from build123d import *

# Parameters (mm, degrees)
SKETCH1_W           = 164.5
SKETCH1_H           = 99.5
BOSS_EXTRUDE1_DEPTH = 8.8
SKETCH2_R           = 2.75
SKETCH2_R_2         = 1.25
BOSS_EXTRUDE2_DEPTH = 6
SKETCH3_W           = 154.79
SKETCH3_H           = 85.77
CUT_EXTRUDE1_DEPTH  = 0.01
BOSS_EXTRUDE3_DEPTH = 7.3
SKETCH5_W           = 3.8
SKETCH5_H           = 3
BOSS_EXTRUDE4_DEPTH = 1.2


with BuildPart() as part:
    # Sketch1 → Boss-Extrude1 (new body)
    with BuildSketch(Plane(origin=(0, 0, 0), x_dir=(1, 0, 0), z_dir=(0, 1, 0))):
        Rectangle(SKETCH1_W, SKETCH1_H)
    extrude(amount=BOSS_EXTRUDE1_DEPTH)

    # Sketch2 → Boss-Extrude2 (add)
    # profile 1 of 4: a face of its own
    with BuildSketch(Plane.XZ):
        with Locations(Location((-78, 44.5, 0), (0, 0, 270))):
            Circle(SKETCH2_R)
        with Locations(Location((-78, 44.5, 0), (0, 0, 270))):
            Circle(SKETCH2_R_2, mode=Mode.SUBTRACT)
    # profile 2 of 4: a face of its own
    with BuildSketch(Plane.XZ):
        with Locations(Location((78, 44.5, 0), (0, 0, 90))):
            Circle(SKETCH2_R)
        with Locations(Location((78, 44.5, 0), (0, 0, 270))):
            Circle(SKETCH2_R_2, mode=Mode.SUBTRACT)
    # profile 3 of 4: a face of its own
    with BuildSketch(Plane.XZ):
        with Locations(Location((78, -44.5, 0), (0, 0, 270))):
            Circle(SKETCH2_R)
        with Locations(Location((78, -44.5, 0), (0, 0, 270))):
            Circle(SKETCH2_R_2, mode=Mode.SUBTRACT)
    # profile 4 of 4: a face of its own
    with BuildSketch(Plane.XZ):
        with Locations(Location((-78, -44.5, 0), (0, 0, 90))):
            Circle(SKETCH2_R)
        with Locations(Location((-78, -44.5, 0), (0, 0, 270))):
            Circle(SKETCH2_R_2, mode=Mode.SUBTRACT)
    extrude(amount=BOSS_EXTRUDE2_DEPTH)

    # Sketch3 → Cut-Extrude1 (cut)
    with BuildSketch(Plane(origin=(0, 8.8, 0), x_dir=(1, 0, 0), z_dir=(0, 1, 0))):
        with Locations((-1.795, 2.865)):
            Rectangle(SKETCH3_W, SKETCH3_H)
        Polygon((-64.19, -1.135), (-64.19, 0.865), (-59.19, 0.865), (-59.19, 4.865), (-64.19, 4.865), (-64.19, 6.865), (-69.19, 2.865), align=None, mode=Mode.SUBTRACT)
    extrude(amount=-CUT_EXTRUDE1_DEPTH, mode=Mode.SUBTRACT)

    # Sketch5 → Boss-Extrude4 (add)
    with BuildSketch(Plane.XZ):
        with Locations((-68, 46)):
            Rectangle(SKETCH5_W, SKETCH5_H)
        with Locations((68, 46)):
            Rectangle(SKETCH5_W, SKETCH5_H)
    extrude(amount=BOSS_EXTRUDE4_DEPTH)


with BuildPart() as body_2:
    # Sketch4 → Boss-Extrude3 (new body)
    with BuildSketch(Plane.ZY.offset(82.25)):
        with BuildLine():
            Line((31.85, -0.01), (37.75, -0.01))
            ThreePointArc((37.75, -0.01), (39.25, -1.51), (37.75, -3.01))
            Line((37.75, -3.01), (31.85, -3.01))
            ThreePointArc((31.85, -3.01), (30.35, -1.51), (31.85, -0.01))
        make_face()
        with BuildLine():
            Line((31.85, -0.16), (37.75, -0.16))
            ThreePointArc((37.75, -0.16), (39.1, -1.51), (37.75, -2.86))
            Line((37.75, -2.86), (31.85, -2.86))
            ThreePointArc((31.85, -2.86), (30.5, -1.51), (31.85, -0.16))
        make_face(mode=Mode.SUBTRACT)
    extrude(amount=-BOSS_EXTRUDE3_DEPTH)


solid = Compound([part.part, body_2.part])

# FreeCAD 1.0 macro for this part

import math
import FreeCAD as App
import Part
import Sketcher

V = App.Vector

doc = App.newDocument("Part")
params = doc.addObject("Spreadsheet::Sheet", "Params")
for row, (alias, value) in enumerate([
    ("sketch1_width", "164.5 mm"),
    ("sketch1_height", "99.5 mm"),
    ("pad1_length", "8.8 mm"),
    ("sketch2_diameter", "5.5 mm"),
    ("sketch2_diameter2", "2.5 mm"),
    ("pad2_length", "6 mm"),
    ("sketch3_width", "5 mm"),
    ("sketch3_height", "2 mm"),
    ("sketch3_height2", "4 mm"),
    ("sketch3_width2", "154.79 mm"),
    ("sketch3_height3", "85.77 mm"),
    ("pocket1_length", "0.01 mm"),
    ("sketch4_height", "3 mm"),
    ("sketch4_width", "3.8 mm"),
    ("pad3_length", "1.2 mm"),
    ("sketch5_radius", "1.5 mm"),
    ("sketch5_radius2", "1.35 mm"),
    ("sketch5_height", "5.9 mm"),
    ("pad4_length", "7.3 mm"),
], start=1):
    params.set(f"A{row}", alias)
    params.set(f"B{row}", "=" + value)
    params.setAlias(f"B{row}", alias)

body = doc.addObject("PartDesign::Body", "Body")

# Sketch on XZ plane
sketch1 = doc.addObject("Sketcher::SketchObject", "Sketch")
body.addObject(sketch1)
sketch1.AttachmentSupport = (doc.XZ_Plane, [""])
sketch1.MapMode = "FlatFace"
sketch1.addGeometry(Part.LineSegment(V(-82, -50, 0), V(-82, 50, 0)), False)
sketch1.addGeometry(Part.LineSegment(V(-82, 50, 0), V(82, 50, 0)), False)
sketch1.addGeometry(Part.LineSegment(V(82, 50, 0), V(82, -50, 0)), False)
sketch1.addGeometry(Part.LineSegment(V(82, -50, 0), V(-82, -50, 0)), False)
sketch1.addConstraint(Sketcher.Constraint("Coincident", 0, 2, 1, 1))
sketch1.addConstraint(Sketcher.Constraint("Coincident", 1, 2, 2, 1))
sketch1.addConstraint(Sketcher.Constraint("Coincident", 2, 2, 3, 1))
sketch1.addConstraint(Sketcher.Constraint("Coincident", 3, 2, 0, 1))
sketch1.addConstraint(Sketcher.Constraint("Vertical", 0))
sketch1.addConstraint(Sketcher.Constraint("Horizontal", 1))
sketch1.addConstraint(Sketcher.Constraint("Vertical", 2))
sketch1.addConstraint(Sketcher.Constraint("Horizontal", 3))
sketch1.addConstraint(Sketcher.Constraint("Symmetric", 0, 2, 2, 2, -1, 1))
sketch1.addConstraint(Sketcher.Constraint("DistanceX", 1, 1, 1, 2, 164.5))
sketch1.addConstraint(Sketcher.Constraint("DistanceY", 0, 1, 0, 2, 99.5))
sketch1.setExpression("Constraints[9]", "Params.sketch1_width")
sketch1.setExpression("Constraints[10]", "Params.sketch1_height")
pad1 = doc.addObject("PartDesign::Pad", "Pad")
body.addObject(pad1)
pad1.Profile = sketch1
pad1.setExpression("Length", "Params.pad1_length")
pad1.Reversed = True

# Sketch on XZ plane
sketch2 = doc.addObject("Sketcher::SketchObject", "Sketch001")
body.addObject(sketch2)
sketch2.AttachmentSupport = (doc.XZ_Plane, [""])
sketch2.MapMode = "FlatFace"
sketch2.addGeometry(Part.Circle(V(-78, 44.5, 0), V(0, 0, 1), 2.8), False)
sketch2.addGeometry(Part.Circle(V(-78, 44.5, 0), V(0, 0, 1), 1.2), False)
sketch2.addGeometry(Part.Circle(V(78, 44.5, 0), V(0, 0, 1), 2.8), False)
sketch2.addGeometry(Part.Circle(V(78, 44.5, 0), V(0, 0, 1), 1.2), False)
sketch2.addGeometry(Part.Circle(V(78, -44.5, 0), V(0, 0, 1), 2.8), False)
sketch2.addGeometry(Part.Circle(V(78, -44.5, 0), V(0, 0, 1), 1.2), False)
sketch2.addGeometry(Part.Circle(V(-78, -44.5, 0), V(0, 0, 1), 2.8), False)
sketch2.addGeometry(Part.Circle(V(-78, -44.5, 0), V(0, 0, 1), 1.2), False)
sketch2.addConstraint(Sketcher.Constraint("Coincident", 1, 3, 0, 3))
sketch2.addConstraint(Sketcher.Constraint("Coincident", 3, 3, 2, 3))
sketch2.addConstraint(Sketcher.Constraint("Coincident", 5, 3, 4, 3))
sketch2.addConstraint(Sketcher.Constraint("Coincident", 7, 3, 6, 3))
sketch2.addConstraint(Sketcher.Constraint("Equal", 0, 2))
sketch2.addConstraint(Sketcher.Constraint("Equal", 1, 3))
sketch2.addConstraint(Sketcher.Constraint("Equal", 2, 4))
sketch2.addConstraint(Sketcher.Constraint("Equal", 3, 5))
sketch2.addConstraint(Sketcher.Constraint("Equal", 4, 6))
sketch2.addConstraint(Sketcher.Constraint("Equal", 5, 7))
sketch2.addConstraint(Sketcher.Constraint("Symmetric", 0, 3, 4, 3, -1, 1))
sketch2.addConstraint(Sketcher.Constraint("Symmetric", 2, 3, 6, 3, -1, 1))
sketch2.addConstraint(Sketcher.Constraint("Symmetric", 0, 3, 2, 3, -2))
sketch2.addConstraint(Sketcher.Constraint("Diameter", 0, 5.5))
sketch2.addConstraint(Sketcher.Constraint("Diameter", 1, 2.5))
sketch2.addConstraint(Sketcher.Constraint("DistanceX", 0, 3, -1, 1, 78.0))
sketch2.addConstraint(Sketcher.Constraint("DistanceY", 4, 3, 2, 3, 89.0))
sketch2.setExpression("Constraints[13]", "Params.sketch2_diameter")
sketch2.setExpression("Constraints[14]", "Params.sketch2_diameter2")
pad2 = doc.addObject("PartDesign::Pad", "Pad001")
body.addObject(pad2)
pad2.Profile = sketch2
pad2.setExpression("Length", "Params.pad2_length")

# Sketch on XZ plane
sketch3 = doc.addObject("Sketcher::SketchObject", "Sketch002")
body.addObject(sketch3)
sketch3.AttachmentSupport = (doc.XZ_Plane, [""])
sketch3.MapMode = "FlatFace"
sketch3.AttachmentOffset = App.Placement(V(0, 0, -8.8), App.Rotation())
sketch3.addGeometry(Part.LineSegment(V(-79.2, -45.8, 0), V(-79.2, 40, 0)), False)
sketch3.addGeometry(Part.LineSegment(V(-79.2, 40, 0), V(75.6, 40, 0)), False)
sketch3.addGeometry(Part.LineSegment(V(75.6, 40, 0), V(75.6, -45.8, 0)), False)
sketch3.addGeometry(Part.LineSegment(V(75.6, -45.8, 0), V(-79.2, -45.8, 0)), False)
sketch3.addGeometry(Part.LineSegment(V(-64.2, -0.9, 0), V(-64.2, 1.1, 0)), False)
sketch3.addGeometry(Part.LineSegment(V(-64.2, 1.1, 0), V(-69.2, -2.9, 0)), False)
sketch3.addGeometry(Part.LineSegment(V(-69.2, -2.9, 0), V(-64.2, -6.9, 0)), False)
sketch3.addGeometry(Part.LineSegment(V(-64.2, -6.9, 0), V(-64.2, -4.9, 0)), False)
sketch3.addGeometry(Part.LineSegment(V(-64.2, -4.9, 0), V(-59.2, -4.9, 0)), False)
sketch3.addGeometry(Part.LineSegment(V(-59.2, -4.9, 0), V(-59.2, -0.9, 0)), False)
sketch3.addGeometry(Part.LineSegment(V(-59.2, -0.9, 0), V(-64.2, -0.9, 0)), False)
sketch3.addConstraint(Sketcher.Constraint("Coincident", 0, 2, 1, 1))
sketch3.addConstraint(Sketcher.Constraint("Coincident", 1, 2, 2, 1))
sketch3.addConstraint(Sketcher.Constraint("Coincident", 2, 2, 3, 1))
sketch3.addConstraint(Sketcher.Constraint("Coincident", 3, 2, 0, 1))
sketch3.addConstraint(Sketcher.Constraint("Coincident", 4, 2, 5, 1))
sketch3.addConstraint(Sketcher.Constraint("Coincident", 5, 2, 6, 1))
sketch3.addConstraint(Sketcher.Constraint("Coincident", 6, 2, 7, 1))
sketch3.addConstraint(Sketcher.Constraint("Coincident", 7, 2, 8, 1))
sketch3.addConstraint(Sketcher.Constraint("Coincident", 8, 2, 9, 1))
sketch3.addConstraint(Sketcher.Constraint("Coincident", 9, 2, 10, 1))
sketch3.addConstraint(Sketcher.Constraint("Coincident", 10, 2, 4, 1))
sketch3.addConstraint(Sketcher.Constraint("Vertical", 0))
sketch3.addConstraint(Sketcher.Constraint("Horizontal", 1))
sketch3.addConstraint(Sketcher.Constraint("Vertical", 2))
sketch3.addConstraint(Sketcher.Constraint("Horizontal", 3))
sketch3.addConstraint(Sketcher.Constraint("Vertical", 4))
sketch3.addConstraint(Sketcher.Constraint("Vertical", 7))
sketch3.addConstraint(Sketcher.Constraint("Horizontal", 8))
sketch3.addConstraint(Sketcher.Constraint("Vertical", 9))
sketch3.addConstraint(Sketcher.Constraint("Horizontal", 10))
sketch3.addConstraint(Sketcher.Constraint("Vertical", 4, 2, 6, 2))
sketch3.addConstraint(Sketcher.Constraint("Equal", 4, 7))
sketch3.addConstraint(Sketcher.Constraint("Equal", 5, 6))
sketch3.addConstraint(Sketcher.Constraint("DistanceX", 8, 1, 8, 2, 5.0))
sketch3.addConstraint(Sketcher.Constraint("DistanceY", 4, 1, 4, 2, 2.0))
sketch3.addConstraint(Sketcher.Constraint("DistanceY", 9, 1, 9, 2, 4.0))
sketch3.addConstraint(Sketcher.Constraint("DistanceX", 0, 2, 4, 2, 15.0))
sketch3.addConstraint(Sketcher.Constraint("DistanceX", 5, 2, 4, 2, 5.0))
sketch3.addConstraint(Sketcher.Constraint("DistanceX", 1, 1, 1, 2, 154.79))
sketch3.addConstraint(Sketcher.Constraint("DistanceY", 0, 1, 0, 2, 85.77))
sketch3.addConstraint(Sketcher.Constraint("DistanceX", -1, 1, 1, 2, 75.6))
sketch3.addConstraint(Sketcher.Constraint("DistanceY", -1, 1, 0, 2, 40.02))
sketch3.addConstraint(Sketcher.Constraint("DistanceY", -1, 1, 4, 2, 1.135))
sketch3.setExpression("Constraints[23]", "Params.sketch3_width")
sketch3.setExpression("Constraints[24]", "Params.sketch3_height")
sketch3.setExpression("Constraints[25]", "Params.sketch3_height2")
sketch3.setExpression("Constraints[28]", "Params.sketch3_width2")
sketch3.setExpression("Constraints[29]", "Params.sketch3_height3")
pocket1 = doc.addObject("PartDesign::Pocket", "Pocket")
body.addObject(pocket1)
pocket1.Profile = sketch3
pocket1.setExpression("Length", "Params.pocket1_length")
pocket1.Reversed = True

# Sketch on XZ plane
sketch4 = doc.addObject("Sketcher::SketchObject", "Sketch003")
body.addObject(sketch4)
sketch4.AttachmentSupport = (doc.XZ_Plane, [""])
sketch4.MapMode = "FlatFace"
sketch4.addGeometry(Part.LineSegment(V(-69.9, 47.5, 0), V(-69.9, 44.5, 0)), False)
sketch4.addGeometry(Part.LineSegment(V(-69.9, 44.5, 0), V(-66.1, 44.5, 0)), False)
sketch4.addGeometry(Part.LineSegment(V(-66.1, 44.5, 0), V(-66.1, 47.5, 0)), False)
sketch4.addGeometry(Part.LineSegment(V(-66.1, 47.5, 0), V(-69.9, 47.5, 0)), False)
sketch4.addGeometry(Part.LineSegment(V(66.1, 47.5, 0), V(66.1, 44.5, 0)), False)
sketch4.addGeometry(Part.LineSegment(V(66.1, 44.5, 0), V(69.9, 44.5, 0)), False)
sketch4.addGeometry(Part.LineSegment(V(69.9, 44.5, 0), V(69.9, 47.5, 0)), False)
sketch4.addGeometry(Part.LineSegment(V(69.9, 47.5, 0), V(66.1, 47.5, 0)), False)
sketch4.addConstraint(Sketcher.Constraint("Coincident", 0, 2, 1, 1))
sketch4.addConstraint(Sketcher.Constraint("Coincident", 1, 2, 2, 1))
sketch4.addConstraint(Sketcher.Constraint("Coincident", 2, 2, 3, 1))
sketch4.addConstraint(Sketcher.Constraint("Coincident", 3, 2, 0, 1))
sketch4.addConstraint(Sketcher.Constraint("Coincident", 4, 2, 5, 1))
sketch4.addConstraint(Sketcher.Constraint("Coincident", 5, 2, 6, 1))
sketch4.addConstraint(Sketcher.Constraint("Coincident", 6, 2, 7, 1))
sketch4.addConstraint(Sketcher.Constraint("Coincident", 7, 2, 4, 1))
sketch4.addConstraint(Sketcher.Constraint("Vertical", 0))
sketch4.addConstraint(Sketcher.Constraint("Horizontal", 1))
sketch4.addConstraint(Sketcher.Constraint("Vertical", 2))
sketch4.addConstraint(Sketcher.Constraint("Horizontal", 3))
sketch4.addConstraint(Sketcher.Constraint("Vertical", 4))
sketch4.addConstraint(Sketcher.Constraint("Horizontal", 5))
sketch4.addConstraint(Sketcher.Constraint("Vertical", 6))
sketch4.addConstraint(Sketcher.Constraint("Horizontal", 7))
sketch4.addConstraint(Sketcher.Constraint("Symmetric", 1, 2, 4, 2, -2))
sketch4.addConstraint(Sketcher.Constraint("Symmetric", 3, 2, 6, 2, -2))
sketch4.addConstraint(Sketcher.Constraint("DistanceY", 0, 2, 0, 1, 3.0))
sketch4.addConstraint(Sketcher.Constraint("DistanceX", 1, 1, 1, 2, 3.8))
sketch4.addConstraint(Sketcher.Constraint("DistanceX", 0, 2, 4, 2, 136.0))
sketch4.addConstraint(Sketcher.Constraint("DistanceY", -1, 1, 0, 2, 44.5))
sketch4.setExpression("Constraints[18]", "Params.sketch4_height")
sketch4.setExpression("Constraints[19]", "Params.sketch4_width")
pad3 = doc.addObject("PartDesign::Pad", "Pad002")
body.addObject(pad3)
pad3.Profile = sketch4
pad3.setExpression("Length", "Params.pad3_length")
body2 = doc.addObject("PartDesign::Body", "Body001")

# Sketch on YZ plane
sketch5 = doc.addObject("Sketcher::SketchObject", "Sketch004")
body2.addObject(sketch5)
sketch5.AttachmentSupport = (doc.getObject("YZ_Plane001"), [""])
sketch5.MapMode = "FlatFace"
sketch5.AttachmentOffset = App.Placement(V(0, 0, -82.25), App.Rotation())
sketch5.addGeometry(Part.LineSegment(V(0, 37.8, 0), V(0, 31.9, 0)), False)
sketch5.addGeometry(Part.ArcOfCircle(Part.Circle(V(-1.5, 31.9, 0), V(0, 0, 1), 1.5), math.radians(180), math.radians(360)), False)
sketch5.addGeometry(Part.LineSegment(V(-3, 31.9, 0), V(-3, 37.8, 0)), False)
sketch5.addGeometry(Part.ArcOfCircle(Part.Circle(V(-1.5, 37.8, 0), V(0, 0, 1), 1.5), math.radians(0), math.radians(180)), False)
sketch5.addGeometry(Part.LineSegment(V(-0.2, 31.9, 0), V(-0.2, 37.8, 0)), False)
sketch5.addGeometry(Part.ArcOfCircle(Part.Circle(V(-1.5, 37.8, 0), V(0, 0, 1), 1.4), math.radians(0), math.radians(180)), False)
sketch5.addGeometry(Part.LineSegment(V(-2.9, 37.8, 0), V(-2.9, 31.9, 0)), False)
sketch5.addGeometry(Part.ArcOfCircle(Part.Circle(V(-1.5, 31.9, 0), V(0, 0, 1), 1.4), math.radians(180), math.radians(360)), False)
sketch5.addConstraint(Sketcher.Constraint("Tangent", 0, 2, 1, 2))
sketch5.addConstraint(Sketcher.Constraint("Tangent", 1, 1, 2, 1))
sketch5.addConstraint(Sketcher.Constraint("Tangent", 2, 2, 3, 2))
sketch5.addConstraint(Sketcher.Constraint("Tangent", 3, 1, 0, 1))
sketch5.addConstraint(Sketcher.Constraint("Tangent", 4, 2, 5, 1))
sketch5.addConstraint(Sketcher.Constraint("Tangent", 5, 2, 6, 1))
sketch5.addConstraint(Sketcher.Constraint("Tangent", 6, 2, 7, 1))
sketch5.addConstraint(Sketcher.Constraint("Tangent", 7, 2, 4, 1))
sketch5.addConstraint(Sketcher.Constraint("Vertical", 0))
sketch5.addConstraint(Sketcher.Constraint("Vertical", 2))
sketch5.addConstraint(Sketcher.Constraint("Vertical", 4))
sketch5.addConstraint(Sketcher.Constraint("Vertical", 6))
sketch5.addConstraint(Sketcher.Constraint("Coincident", 5, 3, 3, 3))
sketch5.addConstraint(Sketcher.Constraint("Horizontal", 7, 3, 0, 2))
sketch5.addConstraint(Sketcher.Constraint("Radius", 1, 1.5))
sketch5.addConstraint(Sketcher.Constraint("Radius", 5, 1.35))
sketch5.addConstraint(Sketcher.Constraint("DistanceY", 0, 2, 0, 1, 5.9))
sketch5.addConstraint(Sketcher.Constraint("DistanceX", 1, 3, -1, 1, 1.51))
sketch5.addConstraint(Sketcher.Constraint("DistanceY", -1, 1, 1, 3, 31.85))
sketch5.setExpression("Constraints[14]", "Params.sketch5_radius")
sketch5.setExpression("Constraints[15]", "Params.sketch5_radius2")
sketch5.setExpression("Constraints[16]", "Params.sketch5_height")
pad4 = doc.addObject("PartDesign::Pad", "Pad003")
body2.addObject(pad4)
pad4.Profile = sketch5
pad4.setExpression("Length", "Params.pad4_length")

doc.recompute()
